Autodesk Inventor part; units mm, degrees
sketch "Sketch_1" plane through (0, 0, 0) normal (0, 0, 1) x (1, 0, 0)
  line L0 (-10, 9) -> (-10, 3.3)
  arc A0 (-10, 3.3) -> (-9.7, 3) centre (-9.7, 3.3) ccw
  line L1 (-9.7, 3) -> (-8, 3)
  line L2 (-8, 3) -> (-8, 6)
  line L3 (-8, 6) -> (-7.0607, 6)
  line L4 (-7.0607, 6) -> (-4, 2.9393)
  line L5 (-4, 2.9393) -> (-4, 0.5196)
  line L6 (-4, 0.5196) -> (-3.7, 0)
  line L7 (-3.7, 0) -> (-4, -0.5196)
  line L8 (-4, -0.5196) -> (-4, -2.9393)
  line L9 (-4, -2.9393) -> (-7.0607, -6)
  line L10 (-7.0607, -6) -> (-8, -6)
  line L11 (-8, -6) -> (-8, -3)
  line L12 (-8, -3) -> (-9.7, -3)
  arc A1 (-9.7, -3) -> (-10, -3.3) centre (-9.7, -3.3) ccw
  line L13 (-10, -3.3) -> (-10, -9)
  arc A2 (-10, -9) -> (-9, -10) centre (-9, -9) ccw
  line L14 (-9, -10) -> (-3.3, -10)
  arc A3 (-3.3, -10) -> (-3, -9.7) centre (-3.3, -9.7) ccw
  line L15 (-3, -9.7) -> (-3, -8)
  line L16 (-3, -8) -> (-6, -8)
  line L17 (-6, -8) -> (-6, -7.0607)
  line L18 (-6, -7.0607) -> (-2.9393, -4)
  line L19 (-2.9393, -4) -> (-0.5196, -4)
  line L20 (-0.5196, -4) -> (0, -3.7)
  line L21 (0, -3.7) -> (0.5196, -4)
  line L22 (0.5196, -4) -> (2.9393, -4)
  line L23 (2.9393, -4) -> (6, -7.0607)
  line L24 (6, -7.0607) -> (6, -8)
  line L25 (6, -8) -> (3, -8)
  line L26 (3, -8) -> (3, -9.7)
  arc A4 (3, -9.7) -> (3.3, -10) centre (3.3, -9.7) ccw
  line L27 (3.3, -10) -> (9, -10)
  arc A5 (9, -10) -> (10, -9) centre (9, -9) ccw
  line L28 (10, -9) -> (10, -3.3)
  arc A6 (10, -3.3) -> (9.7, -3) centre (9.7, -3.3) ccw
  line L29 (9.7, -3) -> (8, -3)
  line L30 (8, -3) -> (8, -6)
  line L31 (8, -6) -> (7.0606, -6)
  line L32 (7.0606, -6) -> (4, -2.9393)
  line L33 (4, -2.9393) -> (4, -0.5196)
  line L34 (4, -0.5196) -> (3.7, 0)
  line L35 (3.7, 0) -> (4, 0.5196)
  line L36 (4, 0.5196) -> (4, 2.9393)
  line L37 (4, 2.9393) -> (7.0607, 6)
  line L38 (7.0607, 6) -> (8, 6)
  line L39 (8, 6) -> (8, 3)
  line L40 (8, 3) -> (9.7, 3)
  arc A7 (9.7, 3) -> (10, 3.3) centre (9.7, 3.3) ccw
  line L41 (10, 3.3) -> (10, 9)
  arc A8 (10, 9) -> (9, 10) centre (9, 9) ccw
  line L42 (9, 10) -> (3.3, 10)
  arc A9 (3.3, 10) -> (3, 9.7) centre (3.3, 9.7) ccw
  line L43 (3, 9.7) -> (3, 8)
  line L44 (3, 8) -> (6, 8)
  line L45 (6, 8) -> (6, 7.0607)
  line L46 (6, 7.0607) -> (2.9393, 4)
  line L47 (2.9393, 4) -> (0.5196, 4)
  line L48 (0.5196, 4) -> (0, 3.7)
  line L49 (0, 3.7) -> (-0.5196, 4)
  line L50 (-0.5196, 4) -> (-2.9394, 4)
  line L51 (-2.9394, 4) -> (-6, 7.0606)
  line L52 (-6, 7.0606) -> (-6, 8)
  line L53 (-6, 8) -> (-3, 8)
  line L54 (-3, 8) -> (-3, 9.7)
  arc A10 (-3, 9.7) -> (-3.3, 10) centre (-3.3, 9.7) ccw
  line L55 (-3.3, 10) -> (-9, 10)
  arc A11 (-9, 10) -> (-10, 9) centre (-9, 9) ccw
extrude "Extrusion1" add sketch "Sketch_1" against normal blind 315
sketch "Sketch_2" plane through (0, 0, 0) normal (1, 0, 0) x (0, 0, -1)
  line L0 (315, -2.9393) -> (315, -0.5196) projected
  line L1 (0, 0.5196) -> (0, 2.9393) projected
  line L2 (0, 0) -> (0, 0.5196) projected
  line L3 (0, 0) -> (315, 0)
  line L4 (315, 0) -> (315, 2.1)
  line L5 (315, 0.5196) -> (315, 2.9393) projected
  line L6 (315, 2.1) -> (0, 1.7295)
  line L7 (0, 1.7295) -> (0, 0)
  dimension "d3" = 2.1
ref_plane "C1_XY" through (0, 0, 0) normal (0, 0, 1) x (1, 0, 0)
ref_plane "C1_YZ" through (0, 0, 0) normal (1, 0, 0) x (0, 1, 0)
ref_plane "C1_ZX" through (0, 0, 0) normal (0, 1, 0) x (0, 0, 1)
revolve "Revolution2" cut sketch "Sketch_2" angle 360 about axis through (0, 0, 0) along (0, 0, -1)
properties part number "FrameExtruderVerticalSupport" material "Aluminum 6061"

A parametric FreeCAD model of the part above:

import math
import FreeCAD as App
import Part
import Sketcher
from FreeCAD import Vector
Q = App.Units.Quantity

doc = App.newDocument("Part")
body = doc.addObject("PartDesign::Body", "Body")

# Sketch on XY plane
sketch1 = body.newObject("Sketcher::SketchObject", "Sketch")
sketch1.AttachmentSupport = (doc.getObject("XY_Plane"), [""])
sketch1.MapMode = "FlatFace"
sketch1.addGeometry(Part.ArcOfCircle(Part.Circle(Vector(-9, 9, 0), Vector(0, 0, 1), 1), math.radians(90), math.radians(180)), False)
sketch1.addGeometry(Part.LineSegment(Vector(-10, 9, 0), Vector(-10, 3.3, 0)), False)
sketch1.addGeometry(Part.ArcOfCircle(Part.Circle(Vector(-9.7, 3.3, 0), Vector(0, 0, 1), 0.3), math.radians(180), math.radians(270)), False)
sketch1.addGeometry(Part.LineSegment(Vector(-9.7, 3, 0), Vector(-8, 3, 0)), False)
sketch1.addGeometry(Part.LineSegment(Vector(-8, 3, 0), Vector(-8, 6, 0)), False)
sketch1.addGeometry(Part.LineSegment(Vector(-8, 6, 0), Vector(-7.06, 6, 0)), False)
sketch1.addGeometry(Part.LineSegment(Vector(-7.06, 6, 0), Vector(-4, 2.94, 0)), False)
sketch1.addGeometry(Part.LineSegment(Vector(-4, 2.94, 0), Vector(-4, 0.52, 0)), False)
sketch1.addGeometry(Part.LineSegment(Vector(-4, 0.52, 0), Vector(-3.7, 0, 0)), False)
sketch1.addGeometry(Part.LineSegment(Vector(-3.7, 0, 0), Vector(-4, -0.52, 0)), False)
sketch1.addGeometry(Part.LineSegment(Vector(-4, -0.52, 0), Vector(-4, -2.94, 0)), False)
sketch1.addGeometry(Part.LineSegment(Vector(-4, -2.94, 0), Vector(-7.06, -6, 0)), False)
sketch1.addGeometry(Part.LineSegment(Vector(-7.06, -6, 0), Vector(-8, -6, 0)), False)
sketch1.addGeometry(Part.LineSegment(Vector(-8, -6, 0), Vector(-8, -3, 0)), False)
sketch1.addGeometry(Part.LineSegment(Vector(-8, -3, 0), Vector(-9.7, -3, 0)), False)
sketch1.addGeometry(Part.ArcOfCircle(Part.Circle(Vector(-9.7, -3.3, 0), Vector(0, 0, 1), 0.3), math.radians(90), math.radians(180)), False)
sketch1.addGeometry(Part.LineSegment(Vector(-10, -3.3, 0), Vector(-10, -9, 0)), False)
sketch1.addGeometry(Part.ArcOfCircle(Part.Circle(Vector(-9, -9, 0), Vector(0, 0, 1), 1), math.radians(180), math.radians(270)), False)
sketch1.addGeometry(Part.LineSegment(Vector(-9, -10, 0), Vector(-3.3, -10, 0)), False)
sketch1.addGeometry(Part.ArcOfCircle(Part.Circle(Vector(-3.3, -9.7, 0), Vector(0, 0, 1), 0.3), math.radians(-90), math.radians(0)), False)
sketch1.addGeometry(Part.LineSegment(Vector(-3, -9.7, 0), Vector(-3, -8, 0)), False)
sketch1.addGeometry(Part.LineSegment(Vector(-3, -8, 0), Vector(-6, -8, 0)), False)
sketch1.addGeometry(Part.LineSegment(Vector(-6, -8, 0), Vector(-6, -7.06, 0)), False)
sketch1.addGeometry(Part.LineSegment(Vector(-6, -7.06, 0), Vector(-2.94, -4, 0)), False)
sketch1.addGeometry(Part.LineSegment(Vector(-2.94, -4, 0), Vector(-0.52, -4, 0)), False)
sketch1.addGeometry(Part.LineSegment(Vector(-0.52, -4, 0), Vector(0, -3.7, 0)), False)
sketch1.addGeometry(Part.LineSegment(Vector(0, -3.7, 0), Vector(0.52, -4, 0)), False)
sketch1.addGeometry(Part.LineSegment(Vector(0.52, -4, 0), Vector(2.94, -4, 0)), False)
sketch1.addGeometry(Part.LineSegment(Vector(2.94, -4, 0), Vector(6, -7.06, 0)), False)
sketch1.addGeometry(Part.LineSegment(Vector(6, -7.06, 0), Vector(6, -8, 0)), False)
sketch1.addGeometry(Part.LineSegment(Vector(6, -8, 0), Vector(3, -8, 0)), False)
sketch1.addGeometry(Part.LineSegment(Vector(3, -8, 0), Vector(3, -9.7, 0)), False)
sketch1.addGeometry(Part.ArcOfCircle(Part.Circle(Vector(3.3, -9.7, 0), Vector(0, 0, 1), 0.3), math.radians(180), math.radians(270)), False)
sketch1.addGeometry(Part.LineSegment(Vector(3.3, -10, 0), Vector(9, -10, 0)), False)
sketch1.addGeometry(Part.ArcOfCircle(Part.Circle(Vector(9, -9, 0), Vector(0, 0, 1), 1), math.radians(-90), math.radians(0)), False)
sketch1.addGeometry(Part.LineSegment(Vector(10, -9, 0), Vector(10, -3.3, 0)), False)
sketch1.addGeometry(Part.ArcOfCircle(Part.Circle(Vector(9.7, -3.3, 0), Vector(0, 0, 1), 0.3), math.radians(0), math.radians(90)), False)
sketch1.addGeometry(Part.LineSegment(Vector(9.7, -3, 0), Vector(8, -3, 0)), False)
sketch1.addGeometry(Part.LineSegment(Vector(8, -3, 0), Vector(8, -6, 0)), False)
sketch1.addGeometry(Part.LineSegment(Vector(8, -6, 0), Vector(7.06, -6, 0)), False)
sketch1.addGeometry(Part.LineSegment(Vector(7.06, -6, 0), Vector(4, -2.94, 0)), False)
sketch1.addGeometry(Part.LineSegment(Vector(4, -2.94, 0), Vector(4, -0.52, 0)), False)
sketch1.addGeometry(Part.LineSegment(Vector(4, -0.52, 0), Vector(3.7, 0, 0)), False)
sketch1.addGeometry(Part.LineSegment(Vector(3.7, 0, 0), Vector(4, 0.52, 0)), False)
sketch1.addGeometry(Part.LineSegment(Vector(4, 0.52, 0), Vector(4, 2.94, 0)), False)
sketch1.addGeometry(Part.LineSegment(Vector(4, 2.94, 0), Vector(7.06, 6, 0)), False)
sketch1.addGeometry(Part.LineSegment(Vector(7.06, 6, 0), Vector(8, 6, 0)), False)
sketch1.addGeometry(Part.LineSegment(Vector(8, 6, 0), Vector(8, 3, 0)), False)
sketch1.addGeometry(Part.LineSegment(Vector(8, 3, 0), Vector(9.7, 3, 0)), False)
sketch1.addGeometry(Part.ArcOfCircle(Part.Circle(Vector(9.7, 3.3, 0), Vector(0, 0, 1), 0.3), math.radians(-90), math.radians(0)), False)
sketch1.addGeometry(Part.LineSegment(Vector(10, 3.3, 0), Vector(10, 9, 0)), False)
sketch1.addGeometry(Part.ArcOfCircle(Part.Circle(Vector(9, 9, 0), Vector(0, 0, 1), 1), math.radians(0), math.radians(90)), False)
sketch1.addGeometry(Part.LineSegment(Vector(9, 10, 0), Vector(3.3, 10, 0)), False)
sketch1.addGeometry(Part.ArcOfCircle(Part.Circle(Vector(3.3, 9.7, 0), Vector(0, 0, 1), 0.3), math.radians(90), math.radians(180)), False)
sketch1.addGeometry(Part.LineSegment(Vector(3, 9.7, 0), Vector(3, 8, 0)), False)
sketch1.addGeometry(Part.LineSegment(Vector(3, 8, 0), Vector(6, 8, 0)), False)
sketch1.addGeometry(Part.LineSegment(Vector(6, 8, 0), Vector(6, 7.06, 0)), False)
sketch1.addGeometry(Part.LineSegment(Vector(6, 7.06, 0), Vector(2.94, 4, 0)), False)
sketch1.addGeometry(Part.LineSegment(Vector(2.94, 4, 0), Vector(0.52, 4, 0)), False)
sketch1.addGeometry(Part.LineSegment(Vector(0.52, 4, 0), Vector(0, 3.7, 0)), False)
sketch1.addGeometry(Part.LineSegment(Vector(0, 3.7, 0), Vector(-0.52, 4, 0)), False)
sketch1.addGeometry(Part.LineSegment(Vector(-0.52, 4, 0), Vector(-2.94, 4, 0)), False)
sketch1.addGeometry(Part.LineSegment(Vector(-2.94, 4, 0), Vector(-6, 7.06, 0)), False)
sketch1.addGeometry(Part.LineSegment(Vector(-6, 7.06, 0), Vector(-6, 8, 0)), False)
sketch1.addGeometry(Part.LineSegment(Vector(-6, 8, 0), Vector(-3, 8, 0)), False)
sketch1.addGeometry(Part.LineSegment(Vector(-3, 8, 0), Vector(-3, 9.7, 0)), False)
sketch1.addGeometry(Part.ArcOfCircle(Part.Circle(Vector(-3.3, 9.7, 0), Vector(0, 0, 1), 0.3), math.radians(0), math.radians(90)), False)
sketch1.addGeometry(Part.LineSegment(Vector(-3.3, 10, 0), Vector(-9, 10, 0)), False)
sketch1.addConstraint(Sketcher.Constraint("Tangent", 0, 2, 1, 1))
sketch1.addConstraint(Sketcher.Constraint("Tangent", 1, 2, 2, 1))
sketch1.addConstraint(Sketcher.Constraint("Tangent", 2, 2, 3, 1))
sketch1.addConstraint(Sketcher.Constraint("Coincident", 3, 2, 4, 1))
sketch1.addConstraint(Sketcher.Constraint("Coincident", 4, 2, 5, 1))
sketch1.addConstraint(Sketcher.Constraint("Coincident", 5, 2, 6, 1))
sketch1.addConstraint(Sketcher.Constraint("Coincident", 6, 2, 7, 1))
sketch1.addConstraint(Sketcher.Constraint("Coincident", 7, 2, 8, 1))
sketch1.addConstraint(Sketcher.Constraint("Coincident", 8, 2, 9, 1))
sketch1.addConstraint(Sketcher.Constraint("Coincident", 9, 2, 10, 1))
sketch1.addConstraint(Sketcher.Constraint("Coincident", 10, 2, 11, 1))
sketch1.addConstraint(Sketcher.Constraint("Coincident", 11, 2, 12, 1))
sketch1.addConstraint(Sketcher.Constraint("Coincident", 12, 2, 13, 1))
sketch1.addConstraint(Sketcher.Constraint("Coincident", 13, 2, 14, 1))
sketch1.addConstraint(Sketcher.Constraint("Tangent", 14, 2, 15, 1))
sketch1.addConstraint(Sketcher.Constraint("Tangent", 15, 2, 16, 1))
sketch1.addConstraint(Sketcher.Constraint("Tangent", 16, 2, 17, 1))
sketch1.addConstraint(Sketcher.Constraint("Tangent", 17, 2, 18, 1))
sketch1.addConstraint(Sketcher.Constraint("Tangent", 18, 2, 19, 1))
sketch1.addConstraint(Sketcher.Constraint("Tangent", 19, 2, 20, 1))
sketch1.addConstraint(Sketcher.Constraint("Coincident", 20, 2, 21, 1))
sketch1.addConstraint(Sketcher.Constraint("Coincident", 21, 2, 22, 1))
sketch1.addConstraint(Sketcher.Constraint("Coincident", 22, 2, 23, 1))
sketch1.addConstraint(Sketcher.Constraint("Coincident", 23, 2, 24, 1))
sketch1.addConstraint(Sketcher.Constraint("Coincident", 24, 2, 25, 1))
sketch1.addConstraint(Sketcher.Constraint("Coincident", 25, 2, 26, 1))
sketch1.addConstraint(Sketcher.Constraint("Coincident", 26, 2, 27, 1))
sketch1.addConstraint(Sketcher.Constraint("Coincident", 27, 2, 28, 1))
sketch1.addConstraint(Sketcher.Constraint("Coincident", 28, 2, 29, 1))
sketch1.addConstraint(Sketcher.Constraint("Coincident", 29, 2, 30, 1))
sketch1.addConstraint(Sketcher.Constraint("Coincident", 30, 2, 31, 1))
sketch1.addConstraint(Sketcher.Constraint("Tangent", 31, 2, 32, 1))
sketch1.addConstraint(Sketcher.Constraint("Tangent", 32, 2, 33, 1))
sketch1.addConstraint(Sketcher.Constraint("Tangent", 33, 2, 34, 1))
sketch1.addConstraint(Sketcher.Constraint("Tangent", 34, 2, 35, 1))
sketch1.addConstraint(Sketcher.Constraint("Tangent", 35, 2, 36, 1))
sketch1.addConstraint(Sketcher.Constraint("Tangent", 36, 2, 37, 1))
sketch1.addConstraint(Sketcher.Constraint("Coincident", 37, 2, 38, 1))
sketch1.addConstraint(Sketcher.Constraint("Coincident", 38, 2, 39, 1))
sketch1.addConstraint(Sketcher.Constraint("Coincident", 39, 2, 40, 1))
sketch1.addConstraint(Sketcher.Constraint("Coincident", 40, 2, 41, 1))
sketch1.addConstraint(Sketcher.Constraint("Coincident", 41, 2, 42, 1))
sketch1.addConstraint(Sketcher.Constraint("Coincident", 42, 2, 43, 1))
sketch1.addConstraint(Sketcher.Constraint("Coincident", 43, 2, 44, 1))
sketch1.addConstraint(Sketcher.Constraint("Coincident", 44, 2, 45, 1))
sketch1.addConstraint(Sketcher.Constraint("Coincident", 45, 2, 46, 1))
sketch1.addConstraint(Sketcher.Constraint("Coincident", 46, 2, 47, 1))
sketch1.addConstraint(Sketcher.Constraint("Coincident", 47, 2, 48, 1))
sketch1.addConstraint(Sketcher.Constraint("Tangent", 48, 2, 49, 1))
sketch1.addConstraint(Sketcher.Constraint("Tangent", 49, 2, 50, 1))
sketch1.addConstraint(Sketcher.Constraint("Tangent", 50, 2, 51, 1))
sketch1.addConstraint(Sketcher.Constraint("Tangent", 51, 2, 52, 1))
sketch1.addConstraint(Sketcher.Constraint("Tangent", 52, 2, 53, 1))
sketch1.addConstraint(Sketcher.Constraint("Tangent", 53, 2, 54, 1))
sketch1.addConstraint(Sketcher.Constraint("Coincident", 54, 2, 55, 1))
sketch1.addConstraint(Sketcher.Constraint("Coincident", 55, 2, 56, 1))
sketch1.addConstraint(Sketcher.Constraint("Coincident", 56, 2, 57, 1))
sketch1.addConstraint(Sketcher.Constraint("Coincident", 57, 2, 58, 1))
sketch1.addConstraint(Sketcher.Constraint("Coincident", 58, 2, 59, 1))
sketch1.addConstraint(Sketcher.Constraint("Coincident", 59, 2, 60, 1))
sketch1.addConstraint(Sketcher.Constraint("Coincident", 60, 2, 61, 1))
sketch1.addConstraint(Sketcher.Constraint("Coincident", 61, 2, 62, 1))
sketch1.addConstraint(Sketcher.Constraint("Coincident", 62, 2, 63, 1))
sketch1.addConstraint(Sketcher.Constraint("Coincident", 63, 2, 64, 1))
sketch1.addConstraint(Sketcher.Constraint("Coincident", 64, 2, 65, 1))
sketch1.addConstraint(Sketcher.Constraint("Tangent", 65, 2, 66, 1))
sketch1.addConstraint(Sketcher.Constraint("Tangent", 66, 2, 67, 1))
sketch1.addConstraint(Sketcher.Constraint("Tangent", 67, 2, 0, 1))
sketch1.addConstraint(Sketcher.Constraint("Vertical", 1))
sketch1.addConstraint(Sketcher.Constraint("Horizontal", 3))
sketch1.addConstraint(Sketcher.Constraint("Vertical", 4))
sketch1.addConstraint(Sketcher.Constraint("Horizontal", 5))
sketch1.addConstraint(Sketcher.Constraint("Vertical", 7))
sketch1.addConstraint(Sketcher.Constraint("Vertical", 10))
sketch1.addConstraint(Sketcher.Constraint("Horizontal", 12))
sketch1.addConstraint(Sketcher.Constraint("Vertical", 13))
sketch1.addConstraint(Sketcher.Constraint("Horizontal", 14))
sketch1.addConstraint(Sketcher.Constraint("Vertical", 16))
sketch1.addConstraint(Sketcher.Constraint("Horizontal", 18))
sketch1.addConstraint(Sketcher.Constraint("Vertical", 20))
sketch1.addConstraint(Sketcher.Constraint("Horizontal", 21))
sketch1.addConstraint(Sketcher.Constraint("Vertical", 22))
sketch1.addConstraint(Sketcher.Constraint("Horizontal", 24))
sketch1.addConstraint(Sketcher.Constraint("Horizontal", 27))
sketch1.addConstraint(Sketcher.Constraint("Vertical", 29))
sketch1.addConstraint(Sketcher.Constraint("Horizontal", 30))
sketch1.addConstraint(Sketcher.Constraint("Vertical", 31))
sketch1.addConstraint(Sketcher.Constraint("Horizontal", 33))
sketch1.addConstraint(Sketcher.Constraint("Vertical", 35))
sketch1.addConstraint(Sketcher.Constraint("Horizontal", 37))
sketch1.addConstraint(Sketcher.Constraint("Vertical", 38))
sketch1.addConstraint(Sketcher.Constraint("Horizontal", 39))
sketch1.addConstraint(Sketcher.Constraint("Vertical", 41))
sketch1.addConstraint(Sketcher.Constraint("Vertical", 44))
sketch1.addConstraint(Sketcher.Constraint("Horizontal", 46))
sketch1.addConstraint(Sketcher.Constraint("Vertical", 47))
sketch1.addConstraint(Sketcher.Constraint("Horizontal", 48))
sketch1.addConstraint(Sketcher.Constraint("Vertical", 50))
sketch1.addConstraint(Sketcher.Constraint("Horizontal", 52))
sketch1.addConstraint(Sketcher.Constraint("Vertical", 54))
sketch1.addConstraint(Sketcher.Constraint("Horizontal", 55))
sketch1.addConstraint(Sketcher.Constraint("Vertical", 56))
sketch1.addConstraint(Sketcher.Constraint("Horizontal", 58))
sketch1.addConstraint(Sketcher.Constraint("Horizontal", 61))
sketch1.addConstraint(Sketcher.Constraint("Vertical", 63))
sketch1.addConstraint(Sketcher.Constraint("Horizontal", 64))
sketch1.addConstraint(Sketcher.Constraint("Vertical", 65))
sketch1.addConstraint(Sketcher.Constraint("Horizontal", 67))
sketch1.addConstraint(Sketcher.Constraint("Equal", 2, 15))
sketch1.addConstraint(Sketcher.Constraint("Equal", 0, 17))
sketch1.addConstraint(Sketcher.Constraint("Equal", 15, 19))
sketch1.addConstraint(Sketcher.Constraint("Equal", 19, 32))
sketch1.addConstraint(Sketcher.Constraint("Equal", 17, 34))
sketch1.addConstraint(Sketcher.Constraint("Equal", 32, 36))
sketch1.addConstraint(Sketcher.Constraint("Equal", 36, 49))
sketch1.addConstraint(Sketcher.Constraint("Equal", 34, 51))
sketch1.addConstraint(Sketcher.Constraint("Equal", 49, 53))
sketch1.addConstraint(Sketcher.Constraint("Equal", 53, 66))
sketch1.addConstraint(Sketcher.Constraint("Symmetric", 0, 3, 34, 3, -1, 1))
sketch1.addConstraint(Sketcher.Constraint("Symmetric", 15, 3, 49, 3, -1, 1))
sketch1.addConstraint(Sketcher.Constraint("Symmetric", 19, 3, 53, 3, -1, 1))
sketch1.addConstraint(Sketcher.Constraint("Symmetric", 3, 2, 37, 2, -1, 1))
sketch1.addConstraint(Sketcher.Constraint("Symmetric", 5, 2, 39, 2, -1, 1))
sketch1.addConstraint(Sketcher.Constraint("Symmetric", 6, 2, 40, 2, -1, 1))
sketch1.addConstraint(Sketcher.Constraint("Symmetric", 8, 2, 42, 2, -1, 1))
sketch1.addConstraint(Sketcher.Constraint("Symmetric", 9, 2, 43, 2, -1, 1))
sketch1.addConstraint(Sketcher.Constraint("Symmetric", 11, 2, 45, 2, -1, 1))
sketch1.addConstraint(Sketcher.Constraint("Symmetric", 21, 2, 55, 2, -1, 1))
sketch1.addConstraint(Sketcher.Constraint("Symmetric", 23, 2, 57, 2, -1, 1))
sketch1.addConstraint(Sketcher.Constraint("Symmetric", 25, 2, 59, 2, -1, 1))
sketch1.addConstraint(Sketcher.Constraint("Symmetric", 26, 2, 60, 2, -1, 1))
sketch1.addConstraint(Sketcher.Constraint("Symmetric", 28, 2, 62, 2, -1, 1))
sketch1.addConstraint(Sketcher.Constraint("Symmetric", 30, 2, 64, 2, -1, 1))
sketch1.addConstraint(Sketcher.Constraint("Symmetric", 19, 3, 32, 3, -2))
sketch1.addConstraint(Sketcher.Constraint("Symmetric", 15, 3, 36, 3, -2))
sketch1.addConstraint(Sketcher.Constraint("Symmetric", 24, 2, 26, 2, -2))
sketch1.addConstraint(Sketcher.Constraint("Symmetric", 22, 2, 28, 2, -2))
sketch1.addConstraint(Sketcher.Constraint("Symmetric", 12, 2, 38, 2, -2))
sketch1.addConstraint(Sketcher.Constraint("Symmetric", 10, 2, 40, 2, -2))
sketch1.addConstraint(Sketcher.Constraint("PointOnObject", 8, 2, -1))
sketch1.addConstraint(Sketcher.Constraint("PointOnObject", 25, 2, -2))
sketch1.addConstraint(Sketcher.Constraint("Perpendicular", 6, 11))
sketch1.addConstraint(Sketcher.Constraint("Parallel", 11, 23))
sketch1.addConstraint(Sketcher.Constraint("Perpendicular", 8, 25))
sketch1.addConstraint(Sketcher.Constraint("Perpendicular", 9, 26))
sketch1.addConstraint(Sketcher.Constraint("Perpendicular", 23, 28))
sketch1.addConstraint(Sketcher.Constraint("Perpendicular", 25, 42))
sketch1.addConstraint(Sketcher.Constraint("Perpendicular", 40, 45))
sketch1.addConstraint(Sketcher.Constraint("Parallel", 45, 57))
sketch1.addConstraint(Sketcher.Constraint("Perpendicular", 42, 59))
sketch1.addConstraint(Sketcher.Constraint("Perpendicular", 57, 62))
sketch1.addConstraint(Sketcher.Constraint("Horizontal", 21, 2, 29, 2))
sketch1.addConstraint(Sketcher.Constraint("Vertical", 5, 2, 11, 2))
sketch1.addConstraint(Sketcher.Constraint("Vertical", 38, 2, 46, 2))
sketch1.addConstraint(Sketcher.Constraint("Equal", 67, 1))
sketch1.addConstraint(Sketcher.Constraint("Equal", 64, 4))
sketch1.addConstraint(Sketcher.Constraint("Equal", 61, 7))
sketch1.addConstraint(Sketcher.Constraint("Equal", 48, 20))
sketch1.addConstraint(Sketcher.Constraint("Equal", 46, 22))
sketch1.addConstraint(Sketcher.Constraint("Equal", 11, 23))
sketch1.addConstraint(Sketcher.Constraint("Equal", 9, 25))
sketch1.addConstraint(Sketcher.Constraint("Radius", 0, 1.0))
sketch1.addConstraint(Sketcher.Constraint("Radius", 2, 0.3))
sketch1.addConstraint(Sketcher.Constraint("DistanceX", 21, 2, 21, 1, 3.0))
sketch1.addConstraint(Sketcher.Constraint("Angle", 8, Q("-59.9993 deg")))
sketch1.addConstraint(Sketcher.Constraint("DistanceX", 3, 1, 3, 2, 1.7))
sketch1.addConstraint(Sketcher.Constraint("DistanceX", 18, 1, 18, 2, 5.7))
sketch1.addConstraint(Sketcher.Constraint("DistanceX", 0, 3, -1, 1, 9.0))
sketch1.addConstraint(Sketcher.Constraint("DistanceX", 6, 2, -1, 1, 4.0))
sketch1.addConstraint(Sketcher.Constraint("Distance", 8, 0.6))
sketch1.addConstraint(Sketcher.Constraint("DistanceX", 5, 1, 5, 2, 0.9393))
pad1 = body.newObject("PartDesign::Pad", "Pad")
pad1.Profile = sketch1
pad1.Length = 315
pad1.Reversed = True

# Sketch on YZ plane
sketch2 = body.newObject("Sketcher::SketchObject", "Sketch001")
sketch2.AttachmentSupport = (doc.getObject("YZ_Plane"), [""])
sketch2.MapMode = "FlatFace"
sketch2.addGeometry(Part.LineSegment(Vector(1.7, 0, 0), Vector(0, 0, 0)), False)
sketch2.addGeometry(Part.LineSegment(Vector(0, 0, 0), Vector(0, -315, 0)), False)
sketch2.addGeometry(Part.LineSegment(Vector(0, -315, 0), Vector(2.1, -315, 0)), False)
sketch2.addGeometry(Part.LineSegment(Vector(2.1, -315, 0), Vector(1.7, 0, 0)), False)
sketch2.addConstraint(Sketcher.Constraint("Coincident", 0, 2, 1, 1))
sketch2.addConstraint(Sketcher.Constraint("Coincident", 1, 2, 2, 1))
sketch2.addConstraint(Sketcher.Constraint("Coincident", 2, 2, 3, 1))
sketch2.addConstraint(Sketcher.Constraint("Coincident", 3, 2, 0, 1))
sketch2.addConstraint(Sketcher.Constraint("Horizontal", 0))
sketch2.addConstraint(Sketcher.Constraint("Vertical", 1))
sketch2.addConstraint(Sketcher.Constraint("Horizontal", 2))
sketch2.addConstraint(Sketcher.Constraint("Coincident", 0, 2, -1, 1))
sketch2.addConstraint(Sketcher.Constraint("DistanceX", 2, 1, 2, 2, 2.1))
sketch2.addConstraint(Sketcher.Constraint("DistanceY", 1, 2, 1, 1, 315.0))
sketch2.addConstraint(Sketcher.Constraint("DistanceX", 0, 2, 0, 1, 1.7295))
groove = body.newObject("PartDesign::Groove", "Groove")
groove.Profile = sketch2
groove.ReferenceAxis = (sketch2, ["V_Axis"])
groove.Angle = 360

doc.recompute()
